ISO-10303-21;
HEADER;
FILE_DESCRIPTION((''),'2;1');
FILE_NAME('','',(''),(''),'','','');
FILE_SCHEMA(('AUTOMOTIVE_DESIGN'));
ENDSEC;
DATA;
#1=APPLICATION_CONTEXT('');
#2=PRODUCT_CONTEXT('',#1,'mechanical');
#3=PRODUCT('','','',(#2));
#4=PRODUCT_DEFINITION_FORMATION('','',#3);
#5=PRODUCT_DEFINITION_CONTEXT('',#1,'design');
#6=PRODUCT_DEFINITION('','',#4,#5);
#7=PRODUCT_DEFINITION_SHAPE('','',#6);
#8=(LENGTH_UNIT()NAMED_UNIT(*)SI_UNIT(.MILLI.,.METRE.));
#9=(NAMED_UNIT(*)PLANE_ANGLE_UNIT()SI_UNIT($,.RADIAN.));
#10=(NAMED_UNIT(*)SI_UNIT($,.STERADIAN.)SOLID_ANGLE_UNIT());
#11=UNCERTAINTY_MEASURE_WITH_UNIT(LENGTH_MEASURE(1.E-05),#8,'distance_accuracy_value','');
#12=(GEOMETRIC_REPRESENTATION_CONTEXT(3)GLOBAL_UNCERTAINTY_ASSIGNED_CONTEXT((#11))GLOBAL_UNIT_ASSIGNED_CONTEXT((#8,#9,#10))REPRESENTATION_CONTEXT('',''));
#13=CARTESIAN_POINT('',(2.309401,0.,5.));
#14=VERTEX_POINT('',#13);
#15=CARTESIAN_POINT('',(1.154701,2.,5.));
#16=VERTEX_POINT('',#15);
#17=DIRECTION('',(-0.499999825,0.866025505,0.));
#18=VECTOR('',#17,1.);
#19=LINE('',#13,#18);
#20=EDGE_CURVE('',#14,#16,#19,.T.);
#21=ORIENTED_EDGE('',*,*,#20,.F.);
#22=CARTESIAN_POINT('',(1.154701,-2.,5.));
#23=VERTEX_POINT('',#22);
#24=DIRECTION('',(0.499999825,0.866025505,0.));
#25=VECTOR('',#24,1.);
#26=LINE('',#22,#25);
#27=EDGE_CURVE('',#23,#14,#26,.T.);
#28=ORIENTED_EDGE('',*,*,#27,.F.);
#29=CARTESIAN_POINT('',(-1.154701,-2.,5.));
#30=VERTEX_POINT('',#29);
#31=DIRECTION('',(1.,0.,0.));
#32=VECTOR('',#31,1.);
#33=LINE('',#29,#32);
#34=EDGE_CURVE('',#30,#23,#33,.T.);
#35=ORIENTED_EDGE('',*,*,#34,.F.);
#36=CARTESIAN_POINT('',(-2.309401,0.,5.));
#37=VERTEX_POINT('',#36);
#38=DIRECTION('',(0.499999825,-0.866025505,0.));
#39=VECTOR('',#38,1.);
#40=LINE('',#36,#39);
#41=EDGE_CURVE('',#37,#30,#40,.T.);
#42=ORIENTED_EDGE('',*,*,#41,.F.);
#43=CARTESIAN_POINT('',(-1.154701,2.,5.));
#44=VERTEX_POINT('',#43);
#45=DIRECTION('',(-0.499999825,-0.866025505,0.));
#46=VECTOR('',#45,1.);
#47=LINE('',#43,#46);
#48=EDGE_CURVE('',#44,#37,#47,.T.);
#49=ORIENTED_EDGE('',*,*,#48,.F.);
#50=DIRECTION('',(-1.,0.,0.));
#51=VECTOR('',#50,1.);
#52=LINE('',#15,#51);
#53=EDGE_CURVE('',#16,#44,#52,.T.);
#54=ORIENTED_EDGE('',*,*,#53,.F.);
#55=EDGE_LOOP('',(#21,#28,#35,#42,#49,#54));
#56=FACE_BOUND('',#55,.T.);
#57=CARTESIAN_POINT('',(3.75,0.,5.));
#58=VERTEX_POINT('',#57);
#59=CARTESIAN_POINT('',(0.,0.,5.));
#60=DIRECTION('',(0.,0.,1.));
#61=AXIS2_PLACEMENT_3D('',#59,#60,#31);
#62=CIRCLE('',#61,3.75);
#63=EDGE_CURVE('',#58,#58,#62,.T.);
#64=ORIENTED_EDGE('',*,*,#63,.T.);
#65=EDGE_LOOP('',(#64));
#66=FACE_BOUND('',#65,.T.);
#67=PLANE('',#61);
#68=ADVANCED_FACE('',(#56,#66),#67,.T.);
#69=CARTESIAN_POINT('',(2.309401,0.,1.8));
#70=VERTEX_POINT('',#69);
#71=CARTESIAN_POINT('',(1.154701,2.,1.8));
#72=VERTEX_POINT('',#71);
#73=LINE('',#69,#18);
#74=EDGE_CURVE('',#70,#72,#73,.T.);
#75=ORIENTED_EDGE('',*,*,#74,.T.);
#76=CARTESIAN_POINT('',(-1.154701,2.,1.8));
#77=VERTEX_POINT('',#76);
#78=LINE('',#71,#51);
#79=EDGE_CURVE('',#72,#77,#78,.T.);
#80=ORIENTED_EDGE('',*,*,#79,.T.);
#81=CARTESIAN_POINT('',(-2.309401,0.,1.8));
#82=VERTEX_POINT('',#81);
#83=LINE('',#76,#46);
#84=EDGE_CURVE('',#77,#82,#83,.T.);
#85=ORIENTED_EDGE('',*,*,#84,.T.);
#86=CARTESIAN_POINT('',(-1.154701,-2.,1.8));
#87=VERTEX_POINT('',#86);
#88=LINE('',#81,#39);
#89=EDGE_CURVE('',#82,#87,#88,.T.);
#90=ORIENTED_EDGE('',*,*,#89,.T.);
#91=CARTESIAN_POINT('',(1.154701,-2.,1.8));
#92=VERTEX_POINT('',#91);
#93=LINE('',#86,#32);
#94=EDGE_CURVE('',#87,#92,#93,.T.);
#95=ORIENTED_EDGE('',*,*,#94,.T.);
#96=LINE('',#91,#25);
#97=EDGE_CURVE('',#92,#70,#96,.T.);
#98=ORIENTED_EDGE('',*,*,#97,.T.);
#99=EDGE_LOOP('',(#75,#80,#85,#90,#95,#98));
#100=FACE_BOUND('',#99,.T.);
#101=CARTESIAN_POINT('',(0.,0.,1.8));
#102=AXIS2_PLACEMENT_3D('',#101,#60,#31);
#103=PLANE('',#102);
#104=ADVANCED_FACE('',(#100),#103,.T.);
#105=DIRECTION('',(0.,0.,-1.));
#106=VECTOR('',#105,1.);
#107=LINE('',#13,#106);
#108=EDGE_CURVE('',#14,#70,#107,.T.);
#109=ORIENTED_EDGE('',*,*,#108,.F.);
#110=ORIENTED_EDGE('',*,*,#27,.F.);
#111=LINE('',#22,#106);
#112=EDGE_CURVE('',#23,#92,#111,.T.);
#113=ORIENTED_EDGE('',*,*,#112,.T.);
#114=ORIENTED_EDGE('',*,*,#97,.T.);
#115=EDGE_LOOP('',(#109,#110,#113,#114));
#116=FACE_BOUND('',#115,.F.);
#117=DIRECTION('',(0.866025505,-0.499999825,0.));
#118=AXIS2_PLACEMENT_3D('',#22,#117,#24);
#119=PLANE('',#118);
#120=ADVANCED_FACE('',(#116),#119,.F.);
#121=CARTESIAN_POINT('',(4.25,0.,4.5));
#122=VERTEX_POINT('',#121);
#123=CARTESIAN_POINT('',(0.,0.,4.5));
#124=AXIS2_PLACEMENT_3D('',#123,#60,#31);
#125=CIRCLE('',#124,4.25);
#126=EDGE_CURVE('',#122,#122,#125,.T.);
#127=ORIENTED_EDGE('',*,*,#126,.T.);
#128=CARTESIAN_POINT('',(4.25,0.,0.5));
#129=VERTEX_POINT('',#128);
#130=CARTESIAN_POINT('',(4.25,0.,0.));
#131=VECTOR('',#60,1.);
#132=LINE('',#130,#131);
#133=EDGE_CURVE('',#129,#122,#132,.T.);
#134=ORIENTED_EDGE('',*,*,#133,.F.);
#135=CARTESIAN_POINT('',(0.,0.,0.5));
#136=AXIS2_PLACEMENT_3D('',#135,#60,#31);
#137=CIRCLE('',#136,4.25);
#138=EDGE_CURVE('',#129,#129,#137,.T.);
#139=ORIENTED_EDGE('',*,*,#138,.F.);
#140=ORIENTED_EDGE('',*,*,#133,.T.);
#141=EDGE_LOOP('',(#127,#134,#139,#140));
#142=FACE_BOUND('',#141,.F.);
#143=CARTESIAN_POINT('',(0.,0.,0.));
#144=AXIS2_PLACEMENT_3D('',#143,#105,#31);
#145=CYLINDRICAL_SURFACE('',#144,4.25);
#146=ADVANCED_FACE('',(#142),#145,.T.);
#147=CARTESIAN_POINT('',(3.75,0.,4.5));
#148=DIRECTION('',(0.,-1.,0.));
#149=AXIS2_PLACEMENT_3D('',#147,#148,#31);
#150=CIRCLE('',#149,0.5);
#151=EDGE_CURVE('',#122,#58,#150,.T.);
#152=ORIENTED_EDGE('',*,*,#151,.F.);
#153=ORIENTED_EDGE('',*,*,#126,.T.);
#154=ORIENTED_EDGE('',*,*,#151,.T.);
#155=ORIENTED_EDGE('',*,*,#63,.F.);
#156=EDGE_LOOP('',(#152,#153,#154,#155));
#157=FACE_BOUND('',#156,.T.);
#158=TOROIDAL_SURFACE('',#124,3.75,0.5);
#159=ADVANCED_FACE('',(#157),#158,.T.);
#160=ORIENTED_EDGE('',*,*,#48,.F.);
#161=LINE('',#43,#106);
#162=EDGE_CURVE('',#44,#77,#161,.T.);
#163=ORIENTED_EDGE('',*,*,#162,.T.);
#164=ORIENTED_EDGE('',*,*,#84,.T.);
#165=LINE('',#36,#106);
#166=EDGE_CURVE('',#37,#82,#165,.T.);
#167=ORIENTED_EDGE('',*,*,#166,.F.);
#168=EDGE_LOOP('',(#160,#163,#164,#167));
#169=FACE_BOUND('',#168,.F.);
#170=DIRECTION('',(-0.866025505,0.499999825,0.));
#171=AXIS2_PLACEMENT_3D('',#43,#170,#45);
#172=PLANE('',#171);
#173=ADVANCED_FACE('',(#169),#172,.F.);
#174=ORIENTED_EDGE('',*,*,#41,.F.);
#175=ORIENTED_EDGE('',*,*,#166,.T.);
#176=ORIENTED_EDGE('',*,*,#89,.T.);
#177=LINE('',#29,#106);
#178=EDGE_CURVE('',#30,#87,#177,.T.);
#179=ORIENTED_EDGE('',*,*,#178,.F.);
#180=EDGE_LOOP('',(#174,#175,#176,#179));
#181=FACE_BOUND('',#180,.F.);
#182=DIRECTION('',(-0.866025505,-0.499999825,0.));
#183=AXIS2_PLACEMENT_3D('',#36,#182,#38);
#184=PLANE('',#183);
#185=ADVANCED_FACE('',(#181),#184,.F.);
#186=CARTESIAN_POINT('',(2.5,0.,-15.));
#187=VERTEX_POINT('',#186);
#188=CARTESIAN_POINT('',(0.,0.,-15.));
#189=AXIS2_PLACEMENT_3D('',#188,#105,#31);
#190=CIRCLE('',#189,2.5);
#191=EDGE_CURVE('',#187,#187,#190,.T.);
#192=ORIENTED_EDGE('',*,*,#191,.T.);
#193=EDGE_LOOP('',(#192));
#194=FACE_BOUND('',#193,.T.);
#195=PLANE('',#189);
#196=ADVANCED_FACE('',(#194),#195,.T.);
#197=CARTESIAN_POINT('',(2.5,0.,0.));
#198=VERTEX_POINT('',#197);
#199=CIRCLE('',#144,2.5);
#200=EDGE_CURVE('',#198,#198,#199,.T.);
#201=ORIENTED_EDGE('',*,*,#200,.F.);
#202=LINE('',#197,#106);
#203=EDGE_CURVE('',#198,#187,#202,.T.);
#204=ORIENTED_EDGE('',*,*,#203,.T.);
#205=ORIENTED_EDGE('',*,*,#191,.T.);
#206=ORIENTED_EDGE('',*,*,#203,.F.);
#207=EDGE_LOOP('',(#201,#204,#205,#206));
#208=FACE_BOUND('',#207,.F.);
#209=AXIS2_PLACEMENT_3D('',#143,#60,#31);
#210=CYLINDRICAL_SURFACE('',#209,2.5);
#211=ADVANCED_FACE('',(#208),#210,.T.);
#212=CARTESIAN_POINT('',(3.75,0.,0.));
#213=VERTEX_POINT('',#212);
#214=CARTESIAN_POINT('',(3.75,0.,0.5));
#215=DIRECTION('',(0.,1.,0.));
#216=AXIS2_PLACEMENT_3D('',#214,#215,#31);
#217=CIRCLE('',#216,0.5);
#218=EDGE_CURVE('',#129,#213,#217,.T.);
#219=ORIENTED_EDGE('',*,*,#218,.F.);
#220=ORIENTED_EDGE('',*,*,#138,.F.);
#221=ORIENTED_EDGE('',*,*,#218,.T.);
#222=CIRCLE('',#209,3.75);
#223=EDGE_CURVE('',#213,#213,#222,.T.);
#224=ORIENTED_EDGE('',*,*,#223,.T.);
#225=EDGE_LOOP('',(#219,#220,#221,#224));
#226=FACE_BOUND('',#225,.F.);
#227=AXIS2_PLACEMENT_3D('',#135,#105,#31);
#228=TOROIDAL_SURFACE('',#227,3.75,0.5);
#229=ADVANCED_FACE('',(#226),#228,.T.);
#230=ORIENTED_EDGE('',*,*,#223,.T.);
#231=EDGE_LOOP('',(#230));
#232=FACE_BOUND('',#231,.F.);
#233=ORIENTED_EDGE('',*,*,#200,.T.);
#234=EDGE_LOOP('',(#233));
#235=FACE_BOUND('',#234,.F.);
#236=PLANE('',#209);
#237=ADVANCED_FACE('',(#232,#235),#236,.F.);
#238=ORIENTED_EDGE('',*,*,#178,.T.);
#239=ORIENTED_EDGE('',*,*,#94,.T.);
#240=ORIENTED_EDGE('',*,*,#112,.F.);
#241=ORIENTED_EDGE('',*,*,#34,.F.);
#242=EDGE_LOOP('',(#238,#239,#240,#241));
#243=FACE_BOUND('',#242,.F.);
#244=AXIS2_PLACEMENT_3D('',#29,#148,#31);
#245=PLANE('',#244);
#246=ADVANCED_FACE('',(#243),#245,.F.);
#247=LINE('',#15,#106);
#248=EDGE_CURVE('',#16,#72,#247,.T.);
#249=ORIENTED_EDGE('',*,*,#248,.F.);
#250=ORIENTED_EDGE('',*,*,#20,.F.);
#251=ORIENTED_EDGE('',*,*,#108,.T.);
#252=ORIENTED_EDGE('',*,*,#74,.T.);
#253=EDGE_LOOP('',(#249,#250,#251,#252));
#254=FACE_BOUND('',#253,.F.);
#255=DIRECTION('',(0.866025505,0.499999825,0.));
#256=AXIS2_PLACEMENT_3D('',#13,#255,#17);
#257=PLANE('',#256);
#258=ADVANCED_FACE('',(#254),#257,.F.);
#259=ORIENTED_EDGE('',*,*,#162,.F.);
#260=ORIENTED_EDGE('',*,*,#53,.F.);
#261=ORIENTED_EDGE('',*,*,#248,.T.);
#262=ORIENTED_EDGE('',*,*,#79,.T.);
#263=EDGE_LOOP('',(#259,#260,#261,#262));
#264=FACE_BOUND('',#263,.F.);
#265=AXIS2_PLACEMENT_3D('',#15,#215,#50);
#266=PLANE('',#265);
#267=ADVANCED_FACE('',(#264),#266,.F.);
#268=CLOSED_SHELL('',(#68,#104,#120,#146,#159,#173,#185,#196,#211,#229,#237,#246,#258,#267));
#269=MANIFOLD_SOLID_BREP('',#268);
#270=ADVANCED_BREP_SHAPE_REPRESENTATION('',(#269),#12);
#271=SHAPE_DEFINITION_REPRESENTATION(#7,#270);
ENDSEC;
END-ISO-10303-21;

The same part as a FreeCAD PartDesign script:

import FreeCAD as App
import Part
import Sketcher
from FreeCAD import Vector
Q = App.Units.Quantity


def edges_at(feature, points):
    """Names of the edges that pass closest to the given points."""
    edges = feature.Shape.Edges
    near = lambda p: min(range(len(edges)), key=lambda i: edges[i].distToShape(Part.Vertex(*p))[0])
    return sorted({f"Edge{near(p) + 1}" for p in points})

doc = App.newDocument("Part")
body = doc.addObject("PartDesign::Body", "Body")

sketch1 = doc.addObject("Sketcher::SketchObject", "Sketch")
body.addObject(sketch1)
sketch1.AttachmentSupport = (doc.XY_Plane, [""])
sketch1.MapMode = "FlatFace"
sketch1.addGeometry(Part.Circle(Vector(0, 0, 0), Vector(0, 0, 1), 4.25), False)
sketch1.addConstraint([
    Sketcher.Constraint("Coincident", 0, 3, -1, 1),
    Sketcher.Constraint("Diameter", 0, Q("8.5 mm")),
])
pad1 = doc.addObject("PartDesign::Pad", "Pad")
body.addObject(pad1)
pad1.Profile = sketch1
pad1.Length = 5

sketch2 = doc.addObject("Sketcher::SketchObject", "Sketch001")
body.addObject(sketch2)
sketch2.AttachmentSupport = (doc.XY_Plane, [""])
sketch2.MapMode = "FlatFace"
sketch2.addGeometry(Part.Circle(Vector(0, 0, 0), Vector(0, 0, 1), 2.5), False)
sketch2.addConstraint([
    Sketcher.Constraint("Coincident", 0, 3, -1, 1),
    Sketcher.Constraint("Diameter", 0, Q("5 mm")),
])
pad2 = doc.addObject("PartDesign::Pad", "Pad001")
body.addObject(pad2)
pad2.Profile = sketch2
pad2.Length = 15
pad2.Reversed = True

sketch3 = doc.addObject("Sketcher::SketchObject", "Sketch002")
body.addObject(sketch3)
sketch3.AttachmentSupport = (doc.XY_Plane, [""])
sketch3.MapMode = "FlatFace"
sketch3.AttachmentOffset = App.Placement(Vector(0, 0, 5), App.Rotation())
sketch3.addGeometry([
    Part.LineSegment(Vector(-1.154701, -2, 0), Vector(1.154701, -2, 0)),
    Part.LineSegment(Vector(1.154701, -2, 0), Vector(2.309401, 0, 0)),
    Part.LineSegment(Vector(2.309401, 0, 0), Vector(1.154701, 2, 0)),
    Part.LineSegment(Vector(1.154701, 2, 0), Vector(-1.154701, 2, 0)),
    Part.LineSegment(Vector(-1.154701, 2, 0), Vector(-2.309401, 0, 0)),
    Part.LineSegment(Vector(-2.309401, 0, 0), Vector(-1.154701, -2, 0)),
], False)
sketch3.addConstraint([
    Sketcher.Constraint("Coincident", 0, 2, 1, 1),
    Sketcher.Constraint("Coincident", 1, 2, 2, 1),
    Sketcher.Constraint("Coincident", 2, 2, 3, 1),
    Sketcher.Constraint("Coincident", 3, 2, 4, 1),
    Sketcher.Constraint("Coincident", 4, 2, 5, 1),
    Sketcher.Constraint("Coincident", 5, 2, 0, 1),
    Sketcher.Constraint("Horizontal", 0),
    Sketcher.Constraint("Horizontal", 3),
    Sketcher.Constraint("Symmetric", 0, 2, 3, 2, -1, 1),
    Sketcher.Constraint("Symmetric", 1, 2, 4, 2, -1, 1),
    Sketcher.Constraint("PointOnObject", 1, 2, -1),
    Sketcher.Constraint("Parallel", 2, 5),
    Sketcher.Constraint("Vertical", 0, 2, 2, 2),
    Sketcher.Constraint("Angle", 1, Q("60.000012 deg")),
    Sketcher.Constraint("DistanceY", 0, 2, -1, 1, Q("2 mm")),
    Sketcher.Constraint("DistanceX", 0, 1, 0, 2, Q("2.309402 mm")),
])
pocket1 = doc.addObject("PartDesign::Pocket", "Pocket")
body.addObject(pocket1)
pocket1.Profile = sketch3
pocket1.Length = 3.2
doc.recompute()

fillet = doc.addObject("PartDesign::Fillet", "Fillet")
body.addObject(fillet)
fillet.Base = (pocket1, edges_at(pocket1, [(-4.25, 0, 5), (-4.25, 0, 0)]))
fillet.Radius = 0.5

doc.recompute()
